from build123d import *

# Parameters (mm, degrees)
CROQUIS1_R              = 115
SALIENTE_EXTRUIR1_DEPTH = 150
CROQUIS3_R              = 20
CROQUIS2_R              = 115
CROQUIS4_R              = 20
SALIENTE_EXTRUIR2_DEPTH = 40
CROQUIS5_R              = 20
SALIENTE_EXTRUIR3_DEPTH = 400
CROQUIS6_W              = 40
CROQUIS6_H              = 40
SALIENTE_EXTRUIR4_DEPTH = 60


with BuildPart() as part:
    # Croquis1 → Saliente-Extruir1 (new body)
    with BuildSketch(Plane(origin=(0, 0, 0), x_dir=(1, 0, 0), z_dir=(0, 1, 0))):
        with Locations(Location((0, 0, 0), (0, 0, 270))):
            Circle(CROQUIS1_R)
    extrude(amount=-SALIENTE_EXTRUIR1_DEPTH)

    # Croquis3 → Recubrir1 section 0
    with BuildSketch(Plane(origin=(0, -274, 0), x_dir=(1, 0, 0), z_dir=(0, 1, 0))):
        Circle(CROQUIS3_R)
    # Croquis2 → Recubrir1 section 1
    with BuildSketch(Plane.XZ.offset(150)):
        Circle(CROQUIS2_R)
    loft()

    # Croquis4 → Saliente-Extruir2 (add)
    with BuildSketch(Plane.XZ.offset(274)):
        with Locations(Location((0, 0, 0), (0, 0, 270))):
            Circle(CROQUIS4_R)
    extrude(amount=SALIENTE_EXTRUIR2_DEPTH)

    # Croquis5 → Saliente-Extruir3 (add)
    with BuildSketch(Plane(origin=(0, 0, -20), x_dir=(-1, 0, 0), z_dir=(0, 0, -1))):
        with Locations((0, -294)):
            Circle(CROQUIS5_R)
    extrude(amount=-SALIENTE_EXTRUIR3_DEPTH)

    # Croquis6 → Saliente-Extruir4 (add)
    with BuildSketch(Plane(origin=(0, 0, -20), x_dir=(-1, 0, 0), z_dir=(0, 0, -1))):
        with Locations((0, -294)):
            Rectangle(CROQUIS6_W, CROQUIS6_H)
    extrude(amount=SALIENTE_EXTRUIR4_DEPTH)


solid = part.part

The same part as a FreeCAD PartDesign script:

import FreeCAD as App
import Part
import Sketcher

V = App.Vector
Q = App.Units.Quantity

doc = App.newDocument("Part")
body = doc.addObject("PartDesign::Body", "Body")

# Sketch on XZ plane
sketch1 = doc.addObject("Sketcher::SketchObject", "Sketch")
body.addObject(sketch1)
sketch1.AttachmentSupport = (doc.XZ_Plane, [""])
sketch1.MapMode = "FlatFace"
sketch1.addGeometry(Part.Circle(V(0, 0, 0), V(0, 0, 1), 115), False)
sketch1.addConstraint([
    Sketcher.Constraint("Coincident", 0, 3, -1, 1),
    Sketcher.Constraint("Diameter", 0, Q("230 mm")),
])
pad1 = doc.addObject("PartDesign::Pad", "Pad")
body.addObject(pad1)
pad1.Profile = sketch1
pad1.Length = 150

# Sketch on XZ plane
sketch2 = doc.addObject("Sketcher::SketchObject", "Sketch001")
body.addObject(sketch2)
sketch2.AttachmentSupport = (doc.XZ_Plane, [""])
sketch2.MapMode = "FlatFace"
sketch2.AttachmentOffset = App.Placement(V(0, 0, 274), App.Rotation())
sketch2.addGeometry(Part.Circle(V(0, 0, 0), V(0, 0, 1), 20), False)
sketch2.addConstraint([
    Sketcher.Constraint("Coincident", 0, 3, -1, 1),
    Sketcher.Constraint("Diameter", 0, Q("40 mm")),
])

# Sketch on XZ plane
sketch3 = doc.addObject("Sketcher::SketchObject", "Sketch002")
body.addObject(sketch3)
sketch3.AttachmentSupport = (doc.XZ_Plane, [""])
sketch3.MapMode = "FlatFace"
sketch3.AttachmentOffset = App.Placement(V(0, 0, 150), App.Rotation())
sketch3.addGeometry(Part.Circle(V(0, 0, 0), V(0, 0, 1), 115), False)
sketch3.addConstraint([
    Sketcher.Constraint("Coincident", 0, 3, -1, 1),
    Sketcher.Constraint("Diameter", 0, Q("230 mm")),
])

additiveloft = doc.addObject("PartDesign::AdditiveLoft", "AdditiveLoft")
body.addObject(additiveloft)
additiveloft.Profile = sketch2
additiveloft.Sections = [sketch3]

# Sketch on XZ plane
sketch4 = doc.addObject("Sketcher::SketchObject", "Sketch003")
body.addObject(sketch4)
sketch4.AttachmentSupport = (doc.XZ_Plane, [""])
sketch4.MapMode = "FlatFace"
sketch4.AttachmentOffset = App.Placement(V(0, 0, 274), App.Rotation())
sketch4.addGeometry(Part.Circle(V(0, 0, 0), V(0, 0, 1), 20), False)
sketch4.addConstraint([
    Sketcher.Constraint("Coincident", 0, 3, -1, 1),
    Sketcher.Constraint("Diameter", 0, Q("40 mm")),
])
pad2 = doc.addObject("PartDesign::Pad", "Pad001")
body.addObject(pad2)
pad2.Profile = sketch4
pad2.Length = 40

# Sketch on XY plane
sketch5 = doc.addObject("Sketcher::SketchObject", "Sketch004")
body.addObject(sketch5)
sketch5.AttachmentSupport = (doc.XY_Plane, [""])
sketch5.MapMode = "FlatFace"
sketch5.AttachmentOffset = App.Placement(V(0, 0, -20), App.Rotation())
sketch5.addGeometry(Part.Circle(V(0, -294, 0), V(0, 0, 1), 20), False)
sketch5.addConstraint([
    Sketcher.Constraint("PointOnObject", 0, 3, -2),
    Sketcher.Constraint("Diameter", 0, Q("40 mm")),
    Sketcher.Constraint("DistanceY", 0, 3, -1, 1, Q("294 mm")),
])
pad3 = doc.addObject("PartDesign::Pad", "Pad002")
body.addObject(pad3)
pad3.Profile = sketch5
pad3.Length = 400

# Sketch on XY plane
sketch6 = doc.addObject("Sketcher::SketchObject", "Sketch005")
body.addObject(sketch6)
sketch6.AttachmentSupport = (doc.XY_Plane, [""])
sketch6.MapMode = "FlatFace"
sketch6.AttachmentOffset = App.Placement(V(0, 0, -20), App.Rotation())
sketch6.addGeometry([
    Part.LineSegment(V(20, -274, 0), V(20, -314, 0)),
    Part.LineSegment(V(20, -314, 0), V(-20, -314, 0)),
    Part.LineSegment(V(-20, -314, 0), V(-20, -274, 0)),
    Part.LineSegment(V(-20, -274, 0), V(20, -274, 0)),
], False)
sketch6.addConstraint([
    Sketcher.Constraint("Coincident", 0, 2, 1, 1),
    Sketcher.Constraint("Coincident", 1, 2, 2, 1),
    Sketcher.Constraint("Coincident", 2, 2, 3, 1),
    Sketcher.Constraint("Coincident", 3, 2, 0, 1),
    Sketcher.Constraint("Vertical", 0),
    Sketcher.Constraint("Horizontal", 1),
    Sketcher.Constraint("Vertical", 2),
    Sketcher.Constraint("Horizontal", 3),
    Sketcher.Constraint("Equal", 3, 0),
    Sketcher.Constraint("DistanceX", 1, 2, 1, 1, Q("40 mm")),
    Sketcher.Constraint("DistanceX", -1, 1, 0, 2, Q("20 mm")),
    Sketcher.Constraint("DistanceY", 0, 2, -1, 1, Q("314 mm")),
])
pad4 = doc.addObject("PartDesign::Pad", "Pad003")
body.addObject(pad4)
pad4.Profile = sketch6
pad4.Length = 60
pad4.Reversed = True

doc.recompute()
